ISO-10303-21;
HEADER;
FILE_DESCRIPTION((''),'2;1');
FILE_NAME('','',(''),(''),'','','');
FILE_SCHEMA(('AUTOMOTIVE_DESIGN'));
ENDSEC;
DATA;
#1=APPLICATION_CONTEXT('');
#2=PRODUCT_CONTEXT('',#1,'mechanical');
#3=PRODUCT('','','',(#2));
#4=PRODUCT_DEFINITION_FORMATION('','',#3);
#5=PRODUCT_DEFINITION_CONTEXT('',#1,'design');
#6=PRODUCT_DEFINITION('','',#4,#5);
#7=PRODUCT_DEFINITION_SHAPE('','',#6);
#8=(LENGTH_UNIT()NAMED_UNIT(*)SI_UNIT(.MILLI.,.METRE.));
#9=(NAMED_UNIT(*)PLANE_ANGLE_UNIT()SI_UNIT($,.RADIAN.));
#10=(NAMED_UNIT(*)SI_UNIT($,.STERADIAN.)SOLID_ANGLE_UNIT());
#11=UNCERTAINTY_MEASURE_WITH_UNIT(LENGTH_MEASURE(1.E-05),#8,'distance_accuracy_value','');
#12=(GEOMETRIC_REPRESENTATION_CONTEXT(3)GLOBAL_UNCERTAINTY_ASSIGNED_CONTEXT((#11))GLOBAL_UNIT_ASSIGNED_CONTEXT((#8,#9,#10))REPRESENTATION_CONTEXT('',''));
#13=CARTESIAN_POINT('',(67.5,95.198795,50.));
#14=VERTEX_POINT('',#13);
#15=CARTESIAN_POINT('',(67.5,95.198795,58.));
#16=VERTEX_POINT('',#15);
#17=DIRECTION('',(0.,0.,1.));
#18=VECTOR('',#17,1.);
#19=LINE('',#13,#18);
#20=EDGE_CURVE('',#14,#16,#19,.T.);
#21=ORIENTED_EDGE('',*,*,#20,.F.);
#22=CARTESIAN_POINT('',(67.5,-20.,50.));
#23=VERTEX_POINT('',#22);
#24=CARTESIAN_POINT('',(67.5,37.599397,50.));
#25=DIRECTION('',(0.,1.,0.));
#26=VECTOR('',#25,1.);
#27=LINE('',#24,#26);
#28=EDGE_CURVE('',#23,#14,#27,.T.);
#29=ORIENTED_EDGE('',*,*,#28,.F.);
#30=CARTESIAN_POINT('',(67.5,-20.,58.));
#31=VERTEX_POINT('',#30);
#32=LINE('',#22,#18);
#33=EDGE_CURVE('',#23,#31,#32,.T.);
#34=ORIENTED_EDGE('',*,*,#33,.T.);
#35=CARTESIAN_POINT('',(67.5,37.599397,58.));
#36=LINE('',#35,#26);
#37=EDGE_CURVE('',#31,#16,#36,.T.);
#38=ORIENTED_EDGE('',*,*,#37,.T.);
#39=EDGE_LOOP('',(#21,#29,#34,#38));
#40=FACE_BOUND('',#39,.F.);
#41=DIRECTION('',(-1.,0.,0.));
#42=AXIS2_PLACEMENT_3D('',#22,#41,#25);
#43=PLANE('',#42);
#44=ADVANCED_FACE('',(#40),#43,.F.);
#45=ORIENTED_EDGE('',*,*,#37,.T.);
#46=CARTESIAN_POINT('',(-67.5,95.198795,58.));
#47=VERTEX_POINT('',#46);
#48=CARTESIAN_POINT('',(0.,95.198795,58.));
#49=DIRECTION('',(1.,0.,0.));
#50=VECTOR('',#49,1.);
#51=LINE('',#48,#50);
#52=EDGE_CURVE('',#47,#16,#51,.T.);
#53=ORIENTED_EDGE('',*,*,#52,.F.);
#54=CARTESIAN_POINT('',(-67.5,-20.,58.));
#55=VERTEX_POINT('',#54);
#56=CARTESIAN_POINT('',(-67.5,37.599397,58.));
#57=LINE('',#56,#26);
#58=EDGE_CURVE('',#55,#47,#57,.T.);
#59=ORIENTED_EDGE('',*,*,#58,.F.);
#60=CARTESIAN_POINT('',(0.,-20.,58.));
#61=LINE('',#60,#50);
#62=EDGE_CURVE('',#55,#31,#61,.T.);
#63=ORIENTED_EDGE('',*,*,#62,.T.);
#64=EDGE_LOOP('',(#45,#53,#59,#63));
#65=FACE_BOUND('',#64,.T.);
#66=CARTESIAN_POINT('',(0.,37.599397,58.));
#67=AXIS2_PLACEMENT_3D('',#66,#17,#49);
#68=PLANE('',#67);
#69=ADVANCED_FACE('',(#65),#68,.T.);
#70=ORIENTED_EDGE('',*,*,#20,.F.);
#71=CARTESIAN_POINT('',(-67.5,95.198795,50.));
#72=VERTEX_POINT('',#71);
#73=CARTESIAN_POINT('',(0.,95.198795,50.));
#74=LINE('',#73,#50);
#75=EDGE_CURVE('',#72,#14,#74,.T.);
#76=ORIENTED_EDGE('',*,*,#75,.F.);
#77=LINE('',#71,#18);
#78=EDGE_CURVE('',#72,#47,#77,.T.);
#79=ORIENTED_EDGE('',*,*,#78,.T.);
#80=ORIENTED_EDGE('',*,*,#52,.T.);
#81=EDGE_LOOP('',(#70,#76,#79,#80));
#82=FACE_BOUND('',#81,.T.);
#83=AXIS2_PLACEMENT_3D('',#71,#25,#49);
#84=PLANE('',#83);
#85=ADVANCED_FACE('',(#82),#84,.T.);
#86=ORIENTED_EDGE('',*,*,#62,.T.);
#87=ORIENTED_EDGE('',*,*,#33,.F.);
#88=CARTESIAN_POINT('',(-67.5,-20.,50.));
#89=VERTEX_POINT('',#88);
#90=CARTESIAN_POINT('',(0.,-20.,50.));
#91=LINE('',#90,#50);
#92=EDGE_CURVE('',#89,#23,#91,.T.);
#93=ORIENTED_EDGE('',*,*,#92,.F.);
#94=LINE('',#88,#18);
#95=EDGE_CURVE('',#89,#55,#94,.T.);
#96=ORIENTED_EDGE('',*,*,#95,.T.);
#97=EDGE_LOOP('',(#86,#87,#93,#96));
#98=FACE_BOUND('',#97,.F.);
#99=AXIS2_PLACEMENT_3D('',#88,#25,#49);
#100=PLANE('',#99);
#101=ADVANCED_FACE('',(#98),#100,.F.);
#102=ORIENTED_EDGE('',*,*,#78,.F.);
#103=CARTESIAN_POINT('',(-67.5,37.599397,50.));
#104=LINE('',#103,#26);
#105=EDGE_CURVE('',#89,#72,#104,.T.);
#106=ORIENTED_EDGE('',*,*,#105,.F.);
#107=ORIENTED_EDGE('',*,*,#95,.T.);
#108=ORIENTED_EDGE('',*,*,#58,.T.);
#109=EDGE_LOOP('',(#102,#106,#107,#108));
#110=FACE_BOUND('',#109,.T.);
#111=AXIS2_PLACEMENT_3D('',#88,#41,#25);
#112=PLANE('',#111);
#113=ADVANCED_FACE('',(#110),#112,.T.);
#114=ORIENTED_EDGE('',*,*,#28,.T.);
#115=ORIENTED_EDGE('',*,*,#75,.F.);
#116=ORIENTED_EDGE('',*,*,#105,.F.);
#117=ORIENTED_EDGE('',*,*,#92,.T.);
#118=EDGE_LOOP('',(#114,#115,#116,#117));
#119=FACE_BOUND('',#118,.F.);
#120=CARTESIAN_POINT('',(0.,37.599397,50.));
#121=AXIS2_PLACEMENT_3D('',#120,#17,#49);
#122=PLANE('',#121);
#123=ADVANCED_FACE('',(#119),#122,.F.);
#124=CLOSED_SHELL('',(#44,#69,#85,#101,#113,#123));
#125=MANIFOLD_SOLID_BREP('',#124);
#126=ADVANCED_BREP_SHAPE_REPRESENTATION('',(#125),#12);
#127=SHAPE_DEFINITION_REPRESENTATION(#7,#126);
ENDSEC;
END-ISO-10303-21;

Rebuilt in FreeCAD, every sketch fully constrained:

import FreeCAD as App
import Part
import Sketcher
Q = App.Units.Quantity


def add_polygon(sketch, points):
    """Adds a closed chain of lines whose ends are joined by coincident constraints."""
    first, n = sketch.GeometryCount, len(points)
    for a, b in zip(points, points[1:] + points[:1]):
        sketch.addGeometry(Part.LineSegment(App.Vector(*a, 0), App.Vector(*b, 0)), False)
    for i in range(n):
        sketch.addConstraint(Sketcher.Constraint("Coincident", first + i, 2, first + (i + 1) % n, 1))

doc = App.newDocument("Part")
body = doc.addObject("PartDesign::Body", "Body")

# Sketch on XY plane
sketch1 = body.newObject("Sketcher::SketchObject", "Sketch")
sketch1.AttachmentSupport = (doc.getObject("XY_Plane"), [""])
sketch1.MapMode = "FlatFace"
sketch1.AttachmentOffset = App.Placement(App.Vector(0, 0, 50), App.Rotation())
add_polygon(sketch1, [(-67.5, 95.198795), (-67.5, -20), (67.5, -20), (67.5, 95.198795)])  # lines 0-3
sketch1.addConstraint([
    Sketcher.Constraint("Vertical", 0),
    Sketcher.Constraint("Horizontal", 1),
    Sketcher.Constraint("Vertical", 2),
    Sketcher.Constraint("Horizontal", 3),
    Sketcher.Constraint("DistanceX", 1, 1, 1, 2, Q("135 mm")),
    Sketcher.Constraint("DistanceY", 0, 2, -1, 1, Q("20 mm")),
    Sketcher.Constraint("DistanceX", 0, 2, -1, 1, Q("67.5 mm")),
    Sketcher.Constraint("DistanceY", 0, 2, 0, 1, Q("115.198795 mm")),
])
pad1 = body.newObject("PartDesign::Pad", "Pad")
pad1.Profile = sketch1
pad1.Length = 8

doc.recompute()
